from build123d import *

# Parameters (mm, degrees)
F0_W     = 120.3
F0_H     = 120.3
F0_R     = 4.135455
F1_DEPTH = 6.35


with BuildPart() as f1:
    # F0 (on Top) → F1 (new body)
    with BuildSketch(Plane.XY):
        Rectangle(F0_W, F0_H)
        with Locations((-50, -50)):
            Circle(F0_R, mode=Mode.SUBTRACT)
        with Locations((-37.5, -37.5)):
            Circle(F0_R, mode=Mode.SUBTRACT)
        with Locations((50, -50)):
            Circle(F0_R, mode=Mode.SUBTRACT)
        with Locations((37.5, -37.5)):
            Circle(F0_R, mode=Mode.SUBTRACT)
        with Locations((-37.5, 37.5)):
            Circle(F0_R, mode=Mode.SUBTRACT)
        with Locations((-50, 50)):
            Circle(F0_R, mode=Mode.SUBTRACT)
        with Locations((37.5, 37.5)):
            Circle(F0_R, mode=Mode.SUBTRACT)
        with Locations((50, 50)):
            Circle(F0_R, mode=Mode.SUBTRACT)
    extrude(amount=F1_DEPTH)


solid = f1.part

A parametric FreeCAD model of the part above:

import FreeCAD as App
import Part
import Sketcher
from FreeCAD import Vector
Q = App.Units.Quantity

doc = App.newDocument("Part")
body = doc.addObject("PartDesign::Body", "Body")

# Sketch on XY plane
sketch1 = body.newObject("Sketcher::SketchObject", "Sketch")
sketch1.AttachmentSupport = (doc.getObject("XY_Plane"), [""])
sketch1.MapMode = "FlatFace"
sketch1.addGeometry([
    Part.LineSegment(Vector(-60.1, 60.1, 0), Vector(-60.1, -60.1, 0)),  # 0
    Part.LineSegment(Vector(-60.1, -60.1, 0), Vector(60.1, -60.1, 0)),  # 1
    Part.LineSegment(Vector(60.1, -60.1, 0), Vector(60.1, 60.1, 0)),  # 2
    Part.LineSegment(Vector(60.1, 60.1, 0), Vector(-60.1, 60.1, 0)),  # 3
    Part.Circle(Vector(-50, -50, 0), Vector(0, 0, 1), 4.1),  # 4
    Part.Circle(Vector(-37.5, -37.5, 0), Vector(0, 0, 1), 4.1),  # 5
    Part.Circle(Vector(50, -50, 0), Vector(0, 0, 1), 4.1),  # 6
    Part.Circle(Vector(37.5, -37.5, 0), Vector(0, 0, 1), 4.1),  # 7
    Part.Circle(Vector(-37.5, 37.5, 0), Vector(0, 0, 1), 4.1),  # 8
    Part.Circle(Vector(-50, 50, 0), Vector(0, 0, 1), 4.1),  # 9
    Part.Circle(Vector(37.5, 37.5, 0), Vector(0, 0, 1), 4.1),  # 10
    Part.Circle(Vector(50, 50, 0), Vector(0, 0, 1), 4.1),  # 11
], False)
sketch1.addConstraint([
    Sketcher.Constraint("Coincident", 0, 2, 1, 1),
    Sketcher.Constraint("Coincident", 1, 2, 2, 1),
    Sketcher.Constraint("Coincident", 2, 2, 3, 1),
    Sketcher.Constraint("Coincident", 3, 2, 0, 1),
    Sketcher.Constraint("Vertical", 0),
    Sketcher.Constraint("Horizontal", 1),
    Sketcher.Constraint("Vertical", 2),
    Sketcher.Constraint("Horizontal", 3),
    Sketcher.Constraint("Equal", 4, 5),
    Sketcher.Constraint("Equal", 5, 6),
    Sketcher.Constraint("Equal", 6, 7),
    Sketcher.Constraint("Equal", 7, 8),
    Sketcher.Constraint("Equal", 8, 9),
    Sketcher.Constraint("Equal", 9, 10),
    Sketcher.Constraint("Equal", 10, 11),
    Sketcher.Constraint("Symmetric", 7, 3, 8, 3, -1, 1),
    Sketcher.Constraint("Symmetric", 6, 3, 9, 3, -1, 1),
    Sketcher.Constraint("Symmetric", 5, 3, 10, 3, -1, 1),
    Sketcher.Constraint("Symmetric", 4, 3, 11, 3, -1, 1),
    Sketcher.Constraint("Symmetric", 0, 2, 2, 2, -1, 1),
    Sketcher.Constraint("Symmetric", 4, 3, 6, 3, -2),
    Sketcher.Constraint("Symmetric", 5, 3, 7, 3, -2),
    Sketcher.Constraint("Equal", 3, 0),
    Sketcher.Constraint("DistanceX", 1, 1, 1, 2, Q("120.3 mm")),
    Sketcher.Constraint("DistanceX", 4, 3, -1, 1, Q("50 mm")),
    Sketcher.Constraint("DistanceY", 4, 3, -1, 1, Q("50 mm")),
    Sketcher.Constraint("DistanceX", 5, 3, 7, 3, Q("75 mm")),
    Sketcher.Constraint("DistanceY", 5, 3, 8, 3, Q("75 mm")),
    Sketcher.Constraint("Diameter", 4, Q("8.27091 mm")),
])
pad1 = body.newObject("PartDesign::Pad", "Pad")
pad1.Profile = sketch1
pad1.Length = 6.35

doc.recompute()
